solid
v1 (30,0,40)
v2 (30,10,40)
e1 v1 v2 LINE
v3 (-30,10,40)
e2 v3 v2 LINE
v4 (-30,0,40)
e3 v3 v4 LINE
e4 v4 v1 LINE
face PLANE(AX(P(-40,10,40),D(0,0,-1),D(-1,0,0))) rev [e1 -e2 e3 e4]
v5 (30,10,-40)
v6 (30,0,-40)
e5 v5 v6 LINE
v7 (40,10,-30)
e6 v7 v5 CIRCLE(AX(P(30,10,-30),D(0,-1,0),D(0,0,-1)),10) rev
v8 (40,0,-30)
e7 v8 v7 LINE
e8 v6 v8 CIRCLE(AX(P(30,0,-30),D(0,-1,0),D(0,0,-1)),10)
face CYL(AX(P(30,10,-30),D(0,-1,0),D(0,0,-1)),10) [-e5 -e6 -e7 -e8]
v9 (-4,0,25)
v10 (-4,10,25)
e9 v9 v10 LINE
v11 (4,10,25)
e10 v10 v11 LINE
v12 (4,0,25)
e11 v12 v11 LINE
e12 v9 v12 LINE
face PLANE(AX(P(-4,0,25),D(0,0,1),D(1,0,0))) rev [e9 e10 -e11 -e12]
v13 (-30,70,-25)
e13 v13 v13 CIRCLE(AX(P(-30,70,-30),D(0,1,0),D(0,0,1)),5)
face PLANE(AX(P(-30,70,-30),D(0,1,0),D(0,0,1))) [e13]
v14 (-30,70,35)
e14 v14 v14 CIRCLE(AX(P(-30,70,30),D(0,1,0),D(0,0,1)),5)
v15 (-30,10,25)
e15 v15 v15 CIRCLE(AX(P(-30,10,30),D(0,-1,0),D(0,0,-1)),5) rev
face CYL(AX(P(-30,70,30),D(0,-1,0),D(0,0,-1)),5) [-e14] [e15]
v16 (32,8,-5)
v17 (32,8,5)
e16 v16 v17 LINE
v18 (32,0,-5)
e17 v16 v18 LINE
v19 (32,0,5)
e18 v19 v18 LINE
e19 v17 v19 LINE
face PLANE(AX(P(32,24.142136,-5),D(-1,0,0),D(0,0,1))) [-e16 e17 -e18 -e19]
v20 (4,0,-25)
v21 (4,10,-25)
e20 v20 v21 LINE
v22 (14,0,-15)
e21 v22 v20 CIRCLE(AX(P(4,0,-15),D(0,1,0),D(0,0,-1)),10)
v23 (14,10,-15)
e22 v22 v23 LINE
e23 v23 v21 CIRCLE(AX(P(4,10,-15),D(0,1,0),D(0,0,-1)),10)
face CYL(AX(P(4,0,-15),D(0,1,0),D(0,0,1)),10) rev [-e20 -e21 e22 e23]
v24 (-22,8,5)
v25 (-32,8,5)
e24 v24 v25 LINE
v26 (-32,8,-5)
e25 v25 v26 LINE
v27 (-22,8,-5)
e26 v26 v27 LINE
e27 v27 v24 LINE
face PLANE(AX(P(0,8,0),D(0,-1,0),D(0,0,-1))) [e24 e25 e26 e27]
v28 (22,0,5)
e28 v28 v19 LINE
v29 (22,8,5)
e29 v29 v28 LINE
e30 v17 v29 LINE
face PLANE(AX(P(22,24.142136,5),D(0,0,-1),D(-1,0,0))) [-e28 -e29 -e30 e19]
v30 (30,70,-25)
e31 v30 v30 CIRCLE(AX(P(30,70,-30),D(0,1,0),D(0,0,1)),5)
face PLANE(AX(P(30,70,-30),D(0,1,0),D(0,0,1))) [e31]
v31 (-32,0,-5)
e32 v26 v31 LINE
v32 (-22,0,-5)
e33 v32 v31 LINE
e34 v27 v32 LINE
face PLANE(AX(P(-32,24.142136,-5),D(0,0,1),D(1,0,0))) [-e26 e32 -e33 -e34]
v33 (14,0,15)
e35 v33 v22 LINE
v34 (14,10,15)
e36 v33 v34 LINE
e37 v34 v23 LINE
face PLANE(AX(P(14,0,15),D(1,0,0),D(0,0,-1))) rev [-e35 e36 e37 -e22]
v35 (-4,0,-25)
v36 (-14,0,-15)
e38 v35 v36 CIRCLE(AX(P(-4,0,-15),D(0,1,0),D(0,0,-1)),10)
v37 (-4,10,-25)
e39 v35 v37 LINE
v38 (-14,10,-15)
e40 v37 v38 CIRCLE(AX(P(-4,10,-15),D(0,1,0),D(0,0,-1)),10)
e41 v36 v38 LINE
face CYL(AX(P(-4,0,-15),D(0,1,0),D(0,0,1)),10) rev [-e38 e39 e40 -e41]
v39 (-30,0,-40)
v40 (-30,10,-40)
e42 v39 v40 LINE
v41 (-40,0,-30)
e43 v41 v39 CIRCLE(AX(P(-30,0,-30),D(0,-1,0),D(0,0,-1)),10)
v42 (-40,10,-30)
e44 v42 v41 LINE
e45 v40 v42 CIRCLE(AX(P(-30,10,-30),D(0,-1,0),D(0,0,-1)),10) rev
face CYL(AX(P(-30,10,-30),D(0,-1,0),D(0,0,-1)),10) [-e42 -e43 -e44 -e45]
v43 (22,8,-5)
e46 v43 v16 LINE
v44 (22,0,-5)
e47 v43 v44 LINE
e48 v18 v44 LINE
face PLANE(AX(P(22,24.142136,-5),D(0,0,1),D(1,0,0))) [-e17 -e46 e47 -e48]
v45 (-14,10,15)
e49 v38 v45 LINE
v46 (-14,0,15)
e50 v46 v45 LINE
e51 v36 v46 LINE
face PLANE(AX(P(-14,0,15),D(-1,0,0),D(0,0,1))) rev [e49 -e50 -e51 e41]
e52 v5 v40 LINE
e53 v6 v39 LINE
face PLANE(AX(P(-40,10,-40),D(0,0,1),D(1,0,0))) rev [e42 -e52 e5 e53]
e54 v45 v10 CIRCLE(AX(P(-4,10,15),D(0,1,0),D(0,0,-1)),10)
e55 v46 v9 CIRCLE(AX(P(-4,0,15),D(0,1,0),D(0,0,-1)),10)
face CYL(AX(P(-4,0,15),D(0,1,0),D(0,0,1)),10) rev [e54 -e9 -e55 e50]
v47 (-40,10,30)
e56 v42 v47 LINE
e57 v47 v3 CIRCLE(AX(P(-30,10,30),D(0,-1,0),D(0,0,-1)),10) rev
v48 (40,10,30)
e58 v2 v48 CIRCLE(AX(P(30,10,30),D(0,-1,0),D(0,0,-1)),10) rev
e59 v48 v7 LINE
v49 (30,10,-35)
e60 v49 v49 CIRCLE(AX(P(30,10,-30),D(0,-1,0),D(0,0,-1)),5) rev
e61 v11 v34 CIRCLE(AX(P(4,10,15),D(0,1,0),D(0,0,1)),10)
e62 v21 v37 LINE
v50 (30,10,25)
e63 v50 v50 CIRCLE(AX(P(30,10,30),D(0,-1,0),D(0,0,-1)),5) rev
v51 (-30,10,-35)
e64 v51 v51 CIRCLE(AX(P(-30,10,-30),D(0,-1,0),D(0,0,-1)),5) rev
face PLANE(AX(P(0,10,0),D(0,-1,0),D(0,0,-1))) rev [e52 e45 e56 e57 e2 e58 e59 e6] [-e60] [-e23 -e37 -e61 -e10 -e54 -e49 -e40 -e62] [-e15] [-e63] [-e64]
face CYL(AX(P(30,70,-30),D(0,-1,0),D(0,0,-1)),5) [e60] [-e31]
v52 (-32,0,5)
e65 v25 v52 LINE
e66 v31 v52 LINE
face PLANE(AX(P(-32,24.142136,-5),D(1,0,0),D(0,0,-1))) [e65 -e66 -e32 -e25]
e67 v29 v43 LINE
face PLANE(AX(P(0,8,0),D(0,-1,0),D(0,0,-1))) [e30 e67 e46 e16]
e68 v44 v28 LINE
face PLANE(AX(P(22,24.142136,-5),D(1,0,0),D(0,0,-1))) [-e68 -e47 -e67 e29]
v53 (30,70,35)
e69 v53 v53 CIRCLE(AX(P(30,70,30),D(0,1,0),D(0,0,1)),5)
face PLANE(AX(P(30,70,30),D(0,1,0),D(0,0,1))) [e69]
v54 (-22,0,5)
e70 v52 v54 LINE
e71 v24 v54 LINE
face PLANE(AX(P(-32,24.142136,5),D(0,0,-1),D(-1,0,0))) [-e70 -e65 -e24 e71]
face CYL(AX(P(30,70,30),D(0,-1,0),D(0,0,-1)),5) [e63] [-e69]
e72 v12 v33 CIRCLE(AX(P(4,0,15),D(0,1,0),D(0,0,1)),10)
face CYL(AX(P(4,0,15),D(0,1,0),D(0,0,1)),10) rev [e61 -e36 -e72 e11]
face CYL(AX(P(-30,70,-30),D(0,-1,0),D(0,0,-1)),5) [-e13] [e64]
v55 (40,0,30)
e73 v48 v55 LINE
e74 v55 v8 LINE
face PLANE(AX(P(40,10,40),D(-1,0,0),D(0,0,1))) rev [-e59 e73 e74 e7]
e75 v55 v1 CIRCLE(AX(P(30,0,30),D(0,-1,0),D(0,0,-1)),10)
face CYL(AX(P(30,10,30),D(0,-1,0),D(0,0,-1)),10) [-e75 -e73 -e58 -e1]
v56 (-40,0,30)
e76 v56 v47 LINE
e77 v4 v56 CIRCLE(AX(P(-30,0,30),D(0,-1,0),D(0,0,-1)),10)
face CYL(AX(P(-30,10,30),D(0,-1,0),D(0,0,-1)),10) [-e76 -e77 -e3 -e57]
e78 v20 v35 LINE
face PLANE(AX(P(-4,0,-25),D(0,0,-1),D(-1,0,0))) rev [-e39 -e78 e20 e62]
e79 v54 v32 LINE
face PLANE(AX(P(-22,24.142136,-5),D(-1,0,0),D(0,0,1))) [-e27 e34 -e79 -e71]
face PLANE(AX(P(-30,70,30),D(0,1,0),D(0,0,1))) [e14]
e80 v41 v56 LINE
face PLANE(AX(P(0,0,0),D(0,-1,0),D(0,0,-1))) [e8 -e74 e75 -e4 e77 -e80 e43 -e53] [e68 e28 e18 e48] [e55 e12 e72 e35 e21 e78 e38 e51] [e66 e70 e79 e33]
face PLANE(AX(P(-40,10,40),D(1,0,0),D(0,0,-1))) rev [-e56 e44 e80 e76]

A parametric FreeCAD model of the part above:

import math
import FreeCAD as App
import Part
import Sketcher
from FreeCAD import Vector
Q = App.Units.Quantity


def edges_at(feature, points):
    """Names of the edges that pass closest to the given points."""
    edges = feature.Shape.Edges
    near = lambda p: min(range(len(edges)), key=lambda i: edges[i].distToShape(Part.Vertex(*p))[0])
    return sorted({f"Edge{near(p) + 1}" for p in points})


def add_polygon(sketch, points):
    """Adds a closed chain of lines whose ends are joined by coincident constraints."""
    first, n = sketch.GeometryCount, len(points)
    for a, b in zip(points, points[1:] + points[:1]):
        sketch.addGeometry(Part.LineSegment(App.Vector(*a, 0), App.Vector(*b, 0)), False)
    for i in range(n):
        sketch.addConstraint(Sketcher.Constraint("Coincident", first + i, 2, first + (i + 1) % n, 1))

doc = App.newDocument("Part")
body = doc.addObject("PartDesign::Body", "Body")

# Sketch on XZ plane
sketch1 = body.newObject("Sketcher::SketchObject", "Sketch")
sketch1.AttachmentSupport = (doc.getObject("XZ_Plane"), [""])
sketch1.MapMode = "FlatFace"
add_polygon(sketch1, [(-40, -40), (-40, 40), (40, 40), (40, -40)])  # lines 0-3
sketch1.addConstraint([
    Sketcher.Constraint("Vertical", 0),
    Sketcher.Constraint("Horizontal", 1),
    Sketcher.Constraint("Vertical", 2),
    Sketcher.Constraint("Horizontal", 3),
    Sketcher.Constraint("Symmetric", 0, 2, 2, 2, -1, 1),
    Sketcher.Constraint("Equal", 3, 0),
    Sketcher.Constraint("DistanceX", 1, 1, 1, 2, Q("80 mm")),
])
pad1 = body.newObject("PartDesign::Pad", "Pad")
pad1.Profile = sketch1
pad1.Length = 10
pad1.Reversed = True
doc.recompute()

fillet = body.newObject("PartDesign::Fillet", "Fillet")
fillet.Base = (pad1, edges_at(pad1, [
    (40, 5, 40),
    (-40, 5, 40),
    (-40, 5, -40),
    (40, 5, -40),
]))
fillet.Radius = 10

# Sketch on XZ plane
sketch2 = body.newObject("Sketcher::SketchObject", "Sketch001")
sketch2.AttachmentSupport = (doc.getObject("XZ_Plane"), [""])
sketch2.MapMode = "FlatFace"
add_polygon(sketch2, [(-32, -5), (-32, 5), (-22, 5), (-22, -5)])  # lines 0-3
add_polygon(sketch2, [(22, -5), (22, 5), (32, 5), (32, -5)])  # lines 4-7
sketch2.addConstraint([
    Sketcher.Constraint("Vertical", 0),
    Sketcher.Constraint("Horizontal", 1),
    Sketcher.Constraint("Vertical", 2),
    Sketcher.Constraint("Horizontal", 3),
    Sketcher.Constraint("Vertical", 4),
    Sketcher.Constraint("Horizontal", 5),
    Sketcher.Constraint("Vertical", 6),
    Sketcher.Constraint("Horizontal", 7),
    Sketcher.Constraint("Symmetric", 2, 2, 4, 2, -1, 1),
    Sketcher.Constraint("Symmetric", 0, 2, 6, 2, -1, 1),
    Sketcher.Constraint("Horizontal", 1, 2, 4, 2),
    Sketcher.Constraint("Equal", 7, 0),
    Sketcher.Constraint("DistanceX", 1, 1, 1, 2, Q("10 mm")),
    Sketcher.Constraint("DistanceX", 0, 2, -1, 1, Q("32 mm")),
])
pocket1 = body.newObject("PartDesign::Pocket", "Pocket")
pocket1.Profile = sketch2
pocket1.Length = 8

# Sketch on XZ plane
sketch3 = body.newObject("Sketcher::SketchObject", "Sketch002")
sketch3.AttachmentSupport = (doc.getObject("XZ_Plane"), [""])
sketch3.MapMode = "FlatFace"
sketch3.AttachmentOffset = App.Placement(Vector(0, 0, -10), App.Rotation())
sketch3.addGeometry([
    Part.LineSegment(Vector(-4, 25, 0), Vector(4, 25, 0)),  # 0
    Part.ArcOfCircle(Part.Circle(Vector(4, 15, 0), Vector(0, 0, 1), 10), math.radians(0), math.radians(90)),  # 1
    Part.LineSegment(Vector(14, 15, 0), Vector(14, -15, 0)),  # 2
    Part.ArcOfCircle(Part.Circle(Vector(4, -15, 0), Vector(0, 0, 1), 10), math.radians(-90), math.radians(0)),  # 3
    Part.LineSegment(Vector(4, -25, 0), Vector(-4, -25, 0)),  # 4
    Part.ArcOfCircle(Part.Circle(Vector(-4, -15, 0), Vector(0, 0, 1), 10), math.radians(180), math.radians(270)),  # 5
    Part.LineSegment(Vector(-14, -15, 0), Vector(-14, 15, 0)),  # 6
    Part.ArcOfCircle(Part.Circle(Vector(-4, 15, 0), Vector(0, 0, 1), 10), math.radians(90), math.radians(180)),  # 7
], False)
sketch3.addConstraint([
    Sketcher.Constraint("Tangent", 0, 2, 1, 2),
    Sketcher.Constraint("Tangent", 1, 1, 2, 1),
    Sketcher.Constraint("Tangent", 2, 2, 3, 2),
    Sketcher.Constraint("Tangent", 3, 1, 4, 1),
    Sketcher.Constraint("Tangent", 4, 2, 5, 2),
    Sketcher.Constraint("Tangent", 5, 1, 6, 1),
    Sketcher.Constraint("Tangent", 6, 2, 7, 2),
    Sketcher.Constraint("Tangent", 7, 1, 0, 1),
    Sketcher.Constraint("Horizontal", 0),
    Sketcher.Constraint("Vertical", 2),
    Sketcher.Constraint("Horizontal", 4),
    Sketcher.Constraint("Vertical", 6),
    Sketcher.Constraint("Equal", 1, 3),
    Sketcher.Constraint("Equal", 3, 5),
    Sketcher.Constraint("Equal", 5, 7),
    Sketcher.Constraint("Symmetric", 1, 3, 5, 3, -1, 1),
    Sketcher.Constraint("Radius", 1, Q("10 mm")),
    Sketcher.Constraint("DistanceX", 0, 1, 0, 2, Q("8 mm")),
    Sketcher.Constraint("DistanceY", 2, 2, 2, 1, Q("30 mm")),
])
pocket2 = body.newObject("PartDesign::Pocket", "Pocket001")
pocket2.Profile = sketch3
pocket2.Type = "ThroughAll"
pocket2.Reversed = True

# Sketch on XZ plane
sketch4 = body.newObject("Sketcher::SketchObject", "Sketch003")
sketch4.AttachmentSupport = (doc.getObject("XZ_Plane"), [""])
sketch4.MapMode = "FlatFace"
sketch4.AttachmentOffset = App.Placement(Vector(0, 0, -10), App.Rotation())
sketch4.addGeometry([
    Part.Circle(Vector(-30, -30, 0), Vector(0, 0, 1), 5),
    Part.Circle(Vector(30, -30, 0), Vector(0, 0, 1), 5),
    Part.Circle(Vector(-30, 30, 0), Vector(0, 0, 1), 5),
    Part.Circle(Vector(30, 30, 0), Vector(0, 0, 1), 5),
], False)
sketch4.addConstraint([
    Sketcher.Constraint("Equal", 0, 1),
    Sketcher.Constraint("Equal", 1, 2),
    Sketcher.Constraint("Equal", 2, 3),
    Sketcher.Constraint("Symmetric", 1, 3, 2, 3, -1, 1),
    Sketcher.Constraint("Symmetric", 0, 3, 3, 3, -1, 1),
    Sketcher.Constraint("Symmetric", 0, 3, 1, 3, -2),
    Sketcher.Constraint("Diameter", 0, Q("10 mm")),
    Sketcher.Constraint("DistanceX", 0, 3, -1, 1, Q("30 mm")),
    Sketcher.Constraint("DistanceY", 0, 3, -1, 1, Q("30 mm")),
])
pad2 = body.newObject("PartDesign::Pad", "Pad001")
pad2.Profile = sketch4
pad2.Length = 60
pad2.Reversed = True

doc.recompute()
